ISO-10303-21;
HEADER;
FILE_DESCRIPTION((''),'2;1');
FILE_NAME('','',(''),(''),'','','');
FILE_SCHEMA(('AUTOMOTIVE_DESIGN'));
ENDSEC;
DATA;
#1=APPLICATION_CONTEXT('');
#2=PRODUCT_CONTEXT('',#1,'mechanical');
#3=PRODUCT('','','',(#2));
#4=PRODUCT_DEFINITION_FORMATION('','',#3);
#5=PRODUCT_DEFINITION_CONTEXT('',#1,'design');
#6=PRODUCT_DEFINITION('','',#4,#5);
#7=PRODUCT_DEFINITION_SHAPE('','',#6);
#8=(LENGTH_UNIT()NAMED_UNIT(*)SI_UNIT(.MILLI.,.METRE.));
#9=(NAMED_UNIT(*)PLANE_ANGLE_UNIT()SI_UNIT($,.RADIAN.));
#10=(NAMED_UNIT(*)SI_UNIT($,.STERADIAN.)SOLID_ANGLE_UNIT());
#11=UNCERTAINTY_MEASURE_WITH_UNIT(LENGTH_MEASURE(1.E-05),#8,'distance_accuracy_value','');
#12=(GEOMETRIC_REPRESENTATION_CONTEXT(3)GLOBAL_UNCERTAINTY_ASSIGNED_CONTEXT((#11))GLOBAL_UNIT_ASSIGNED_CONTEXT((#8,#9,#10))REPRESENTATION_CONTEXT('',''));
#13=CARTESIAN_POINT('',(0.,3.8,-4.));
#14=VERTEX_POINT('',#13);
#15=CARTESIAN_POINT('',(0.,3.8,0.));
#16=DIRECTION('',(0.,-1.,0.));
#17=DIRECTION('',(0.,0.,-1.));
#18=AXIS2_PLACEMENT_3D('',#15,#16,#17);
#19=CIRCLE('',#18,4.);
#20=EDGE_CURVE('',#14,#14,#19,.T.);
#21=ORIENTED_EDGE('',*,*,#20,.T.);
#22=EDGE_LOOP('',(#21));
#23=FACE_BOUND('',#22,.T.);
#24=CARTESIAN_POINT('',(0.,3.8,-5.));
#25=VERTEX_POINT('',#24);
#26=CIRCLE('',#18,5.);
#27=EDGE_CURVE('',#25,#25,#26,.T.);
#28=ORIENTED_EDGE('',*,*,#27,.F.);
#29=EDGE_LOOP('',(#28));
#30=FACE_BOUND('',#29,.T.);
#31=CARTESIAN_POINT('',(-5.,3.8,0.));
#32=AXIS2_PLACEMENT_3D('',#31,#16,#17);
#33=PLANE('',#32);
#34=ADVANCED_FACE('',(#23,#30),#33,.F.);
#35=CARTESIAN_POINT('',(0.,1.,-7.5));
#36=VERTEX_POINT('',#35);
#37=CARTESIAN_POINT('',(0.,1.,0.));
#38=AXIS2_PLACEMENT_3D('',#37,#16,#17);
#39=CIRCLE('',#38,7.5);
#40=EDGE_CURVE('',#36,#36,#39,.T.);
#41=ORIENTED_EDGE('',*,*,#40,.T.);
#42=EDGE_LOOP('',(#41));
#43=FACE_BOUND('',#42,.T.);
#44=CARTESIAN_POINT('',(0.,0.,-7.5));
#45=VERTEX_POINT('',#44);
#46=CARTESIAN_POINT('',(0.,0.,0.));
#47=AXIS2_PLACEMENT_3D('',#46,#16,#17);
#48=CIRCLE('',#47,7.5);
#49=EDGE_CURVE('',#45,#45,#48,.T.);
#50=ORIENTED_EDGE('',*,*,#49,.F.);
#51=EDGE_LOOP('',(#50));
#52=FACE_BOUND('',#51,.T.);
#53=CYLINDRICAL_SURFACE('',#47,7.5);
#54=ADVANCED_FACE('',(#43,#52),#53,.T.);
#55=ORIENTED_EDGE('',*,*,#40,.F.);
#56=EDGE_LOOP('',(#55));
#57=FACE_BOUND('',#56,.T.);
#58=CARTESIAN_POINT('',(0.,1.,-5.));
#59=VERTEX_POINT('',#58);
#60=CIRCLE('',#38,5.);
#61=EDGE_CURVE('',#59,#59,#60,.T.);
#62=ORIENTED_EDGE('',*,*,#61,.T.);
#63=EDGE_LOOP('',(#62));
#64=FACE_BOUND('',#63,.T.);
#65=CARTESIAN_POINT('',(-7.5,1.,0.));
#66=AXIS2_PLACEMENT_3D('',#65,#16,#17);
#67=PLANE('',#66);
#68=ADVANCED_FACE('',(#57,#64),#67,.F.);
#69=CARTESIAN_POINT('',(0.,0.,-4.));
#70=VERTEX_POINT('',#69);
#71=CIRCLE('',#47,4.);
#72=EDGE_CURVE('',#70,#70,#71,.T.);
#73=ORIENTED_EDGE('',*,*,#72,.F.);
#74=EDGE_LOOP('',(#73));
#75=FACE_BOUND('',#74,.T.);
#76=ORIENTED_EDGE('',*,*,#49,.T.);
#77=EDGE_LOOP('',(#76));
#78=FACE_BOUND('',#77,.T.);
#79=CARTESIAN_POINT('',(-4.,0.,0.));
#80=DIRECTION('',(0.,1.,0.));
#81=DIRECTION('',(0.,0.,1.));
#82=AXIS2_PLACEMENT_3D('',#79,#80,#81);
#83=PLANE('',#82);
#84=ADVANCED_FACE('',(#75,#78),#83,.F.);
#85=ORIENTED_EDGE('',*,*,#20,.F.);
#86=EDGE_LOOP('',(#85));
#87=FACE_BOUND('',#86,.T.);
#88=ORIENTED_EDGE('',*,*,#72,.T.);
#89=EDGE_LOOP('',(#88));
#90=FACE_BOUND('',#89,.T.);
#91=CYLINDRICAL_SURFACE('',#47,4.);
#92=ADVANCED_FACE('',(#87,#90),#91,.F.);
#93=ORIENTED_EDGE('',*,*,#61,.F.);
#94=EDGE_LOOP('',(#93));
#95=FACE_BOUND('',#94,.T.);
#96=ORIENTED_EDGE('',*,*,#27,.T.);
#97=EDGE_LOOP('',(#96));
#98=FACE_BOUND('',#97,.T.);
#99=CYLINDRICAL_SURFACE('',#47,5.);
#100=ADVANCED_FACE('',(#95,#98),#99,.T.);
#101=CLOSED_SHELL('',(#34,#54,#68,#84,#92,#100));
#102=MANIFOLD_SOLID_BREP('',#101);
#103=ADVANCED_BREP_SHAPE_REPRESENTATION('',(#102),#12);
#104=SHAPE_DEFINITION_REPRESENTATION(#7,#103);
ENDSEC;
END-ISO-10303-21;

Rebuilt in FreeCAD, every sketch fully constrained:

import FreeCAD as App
import Part
import Sketcher

doc = App.newDocument("Part")
body = doc.addObject("PartDesign::Body", "Body")

sketch1 = doc.addObject("Sketcher::SketchObject", "Sketch")
body.addObject(sketch1)
sketch1.AttachmentSupport = (doc.XY_Plane, [""])
sketch1.MapMode = "FlatFace"
sketch1.addGeometry(Part.LineSegment(App.Vector(-4, 0, 0), App.Vector(-4, 3.8, 0)), False)
sketch1.addGeometry(Part.LineSegment(App.Vector(-4, 3.8, 0), App.Vector(-5, 3.8, 0)), False)
sketch1.addGeometry(Part.LineSegment(App.Vector(-5, 3.8, 0), App.Vector(-5, 1, 0)), False)
sketch1.addGeometry(Part.LineSegment(App.Vector(-5, 1, 0), App.Vector(-7.5, 1, 0)), False)
sketch1.addGeometry(Part.LineSegment(App.Vector(-7.5, 1, 0), App.Vector(-7.5, 0, 0)), False)
sketch1.addGeometry(Part.LineSegment(App.Vector(-7.5, 0, 0), App.Vector(-4, 0, 0)), False)
sketch1.addConstraint(Sketcher.Constraint("Coincident", 0, 2, 1, 1))
sketch1.addConstraint(Sketcher.Constraint("Coincident", 1, 2, 2, 1))
sketch1.addConstraint(Sketcher.Constraint("Coincident", 2, 2, 3, 1))
sketch1.addConstraint(Sketcher.Constraint("Coincident", 3, 2, 4, 1))
sketch1.addConstraint(Sketcher.Constraint("Coincident", 4, 2, 5, 1))
sketch1.addConstraint(Sketcher.Constraint("Coincident", 5, 2, 0, 1))
sketch1.addConstraint(Sketcher.Constraint("Vertical", 0))
sketch1.addConstraint(Sketcher.Constraint("Horizontal", 1))
sketch1.addConstraint(Sketcher.Constraint("Vertical", 2))
sketch1.addConstraint(Sketcher.Constraint("Horizontal", 3))
sketch1.addConstraint(Sketcher.Constraint("Vertical", 4))
sketch1.addConstraint(Sketcher.Constraint("Horizontal", 5))
sketch1.addConstraint(Sketcher.Constraint("PointOnObject", 4, 2, -1))
sketch1.addConstraint(Sketcher.Constraint("Equal", 1, 4))
sketch1.addConstraint(Sketcher.Constraint("DistanceX", 1, 2, 1, 1, 1.0))
sketch1.addConstraint(Sketcher.Constraint("DistanceX", 3, 2, 3, 1, 2.5))
sketch1.addConstraint(Sketcher.Constraint("DistanceY", 0, 1, 0, 2, 3.8))
sketch1.addConstraint(Sketcher.Constraint("DistanceX", 0, 2, -1, 1, 4.0))
revolution = doc.addObject("PartDesign::Revolution", "Revolution")
body.addObject(revolution)
revolution.Profile = sketch1
revolution.ReferenceAxis = (sketch1, ["V_Axis"])
revolution.Angle = 360

doc.recompute()
